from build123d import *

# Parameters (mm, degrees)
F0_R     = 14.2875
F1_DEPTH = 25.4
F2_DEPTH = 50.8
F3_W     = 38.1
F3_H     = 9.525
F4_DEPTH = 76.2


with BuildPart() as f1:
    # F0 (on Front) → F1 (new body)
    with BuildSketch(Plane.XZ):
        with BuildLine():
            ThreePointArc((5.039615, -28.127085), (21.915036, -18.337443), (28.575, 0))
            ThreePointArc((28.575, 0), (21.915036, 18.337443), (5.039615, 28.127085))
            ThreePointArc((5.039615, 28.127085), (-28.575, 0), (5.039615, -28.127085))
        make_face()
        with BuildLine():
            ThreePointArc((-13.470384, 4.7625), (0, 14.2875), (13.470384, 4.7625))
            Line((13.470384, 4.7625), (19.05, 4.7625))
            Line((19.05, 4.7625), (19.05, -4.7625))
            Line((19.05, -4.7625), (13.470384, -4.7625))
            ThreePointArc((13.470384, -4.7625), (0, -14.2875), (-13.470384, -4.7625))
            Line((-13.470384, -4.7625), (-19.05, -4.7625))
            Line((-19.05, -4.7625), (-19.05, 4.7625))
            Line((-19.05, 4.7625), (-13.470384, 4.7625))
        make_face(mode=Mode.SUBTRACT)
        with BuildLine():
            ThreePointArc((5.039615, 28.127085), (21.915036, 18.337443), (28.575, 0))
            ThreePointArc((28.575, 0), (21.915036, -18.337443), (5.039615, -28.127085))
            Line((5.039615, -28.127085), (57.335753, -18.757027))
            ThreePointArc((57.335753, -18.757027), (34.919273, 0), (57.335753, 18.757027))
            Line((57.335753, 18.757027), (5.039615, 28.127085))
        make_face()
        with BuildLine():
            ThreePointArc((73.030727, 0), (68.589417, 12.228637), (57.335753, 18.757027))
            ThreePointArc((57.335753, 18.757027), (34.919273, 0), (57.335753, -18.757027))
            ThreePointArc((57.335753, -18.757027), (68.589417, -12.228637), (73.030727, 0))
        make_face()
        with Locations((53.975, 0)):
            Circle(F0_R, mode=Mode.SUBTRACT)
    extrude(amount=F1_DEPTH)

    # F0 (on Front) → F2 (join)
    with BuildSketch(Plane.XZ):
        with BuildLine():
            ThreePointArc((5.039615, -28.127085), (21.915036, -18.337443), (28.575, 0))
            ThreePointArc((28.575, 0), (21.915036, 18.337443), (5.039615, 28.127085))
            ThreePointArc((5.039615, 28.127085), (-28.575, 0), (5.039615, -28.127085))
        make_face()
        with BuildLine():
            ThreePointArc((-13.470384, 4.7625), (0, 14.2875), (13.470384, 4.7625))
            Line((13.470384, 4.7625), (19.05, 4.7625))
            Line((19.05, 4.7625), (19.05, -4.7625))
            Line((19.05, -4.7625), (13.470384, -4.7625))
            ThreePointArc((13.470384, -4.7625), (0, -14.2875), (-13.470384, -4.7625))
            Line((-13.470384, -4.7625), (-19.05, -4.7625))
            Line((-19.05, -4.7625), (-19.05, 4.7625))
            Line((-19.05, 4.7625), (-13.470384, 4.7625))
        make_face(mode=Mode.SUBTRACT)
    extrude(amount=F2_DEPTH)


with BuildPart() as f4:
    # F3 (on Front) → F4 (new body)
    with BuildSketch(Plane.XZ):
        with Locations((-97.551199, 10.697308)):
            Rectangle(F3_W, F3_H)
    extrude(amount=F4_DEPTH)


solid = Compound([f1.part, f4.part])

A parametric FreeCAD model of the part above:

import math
import FreeCAD as App
import Part
import Sketcher

V = App.Vector
Q = App.Units.Quantity

doc = App.newDocument("Part")
body = doc.addObject("PartDesign::Body", "Body")

sketch1 = doc.addObject("Sketcher::SketchObject", "Sketch")
body.addObject(sketch1)
sketch1.AttachmentSupport = (doc.XZ_Plane, [""])
sketch1.MapMode = "FlatFace"
sketch1.addGeometry([
    Part.ArcOfCircle(Part.Circle(V(0, 0, 0), V(0, 0, 1), 29), math.radians(80), math.radians(280)),
    Part.LineSegment(V(5, -28, 0), V(57, -19, 0)),
    Part.ArcOfCircle(Part.Circle(V(54, 0, 0), V(0, 0, 1), 19), math.radians(-80), math.radians(0)),
    Part.ArcOfCircle(Part.Circle(V(54, 0, 0), V(0, 0, 1), 19), math.radians(0), math.radians(80)),
    Part.LineSegment(V(57, 19, 0), V(5, 28, 0)),
    Part.LineSegment(V(-19, 5, 0), V(-13, 5, 0)),
    Part.ArcOfCircle(Part.Circle(V(0, 0, 0), V(0, 0, 1), 14), math.radians(19), math.radians(161)),
    Part.LineSegment(V(13, 5, 0), V(19, 5, 0)),
    Part.LineSegment(V(19, 5, 0), V(19, -5, 0)),
    Part.LineSegment(V(19, -5, 0), V(13, -5, 0)),
    Part.ArcOfCircle(Part.Circle(V(0, 0, 0), V(0, 0, 1), 14), math.radians(-161), math.radians(-19)),
    Part.LineSegment(V(-13, -5, 0), V(-19, -5, 0)),
    Part.LineSegment(V(-19, -5, 0), V(-19, 5, 0)),
    Part.Circle(V(54, 0, 0), V(0, 0, 1), 14),
], False)
sketch1.addConstraint([
    Sketcher.Constraint("Tangent", 0, 2, 1, 1),
    Sketcher.Constraint("Tangent", 1, 2, 2, 1),
    Sketcher.Constraint("Tangent", 2, 2, 3, 1),
    Sketcher.Constraint("Tangent", 3, 2, 4, 1),
    Sketcher.Constraint("Tangent", 4, 2, 0, 1),
    Sketcher.Constraint("Coincident", 5, 2, 6, 2),
    Sketcher.Constraint("Coincident", 6, 1, 7, 1),
    Sketcher.Constraint("Coincident", 7, 2, 8, 1),
    Sketcher.Constraint("Coincident", 8, 2, 9, 1),
    Sketcher.Constraint("Coincident", 9, 2, 10, 2),
    Sketcher.Constraint("Coincident", 10, 1, 11, 1),
    Sketcher.Constraint("Coincident", 11, 2, 12, 1),
    Sketcher.Constraint("Coincident", 12, 2, 5, 1),
    Sketcher.Constraint("Horizontal", 5),
    Sketcher.Constraint("Horizontal", 7),
    Sketcher.Constraint("Vertical", 8),
    Sketcher.Constraint("Horizontal", 9),
    Sketcher.Constraint("Horizontal", 11),
    Sketcher.Constraint("Vertical", 12),
    Sketcher.Constraint("Coincident", 0, 3, -1, 1),
    Sketcher.Constraint("Coincident", 6, 3, -1, 1),
    Sketcher.Constraint("Coincident", 10, 3, -1, 1),
    Sketcher.Constraint("Coincident", 13, 3, 2, 3),
    Sketcher.Constraint("Equal", 2, 3),
    Sketcher.Constraint("Equal", 6, 10),
    Sketcher.Constraint("Equal", 10, 13),
    Sketcher.Constraint("Symmetric", 7, 2, 11, 2, -1, 1),
    Sketcher.Constraint("PointOnObject", 2, 3, -1),
    Sketcher.Constraint("PointOnObject", 2, 2, -1),
    Sketcher.Constraint("Horizontal", 5, 2, 6, 1),
    Sketcher.Constraint("Horizontal", 9, 2, 10, 1),
    Sketcher.Constraint("Diameter", 13, Q("1.125 in")),
    Sketcher.Constraint("Radius", 0, Q("1.125 in")),
    Sketcher.Constraint("DistanceY", 8, 2, 8, 1, Q("0.375 in")),
    Sketcher.Constraint("DistanceX", -1, 1, 7, 2, Q("0.75 in")),
    Sketcher.Constraint("DistanceX", -1, 1, 2, 3, Q("2.1250001 in")),
    Sketcher.Constraint("Radius", 2, Q("19.055725 mm")),
])
pad1 = doc.addObject("PartDesign::Pad", "Pad")
body.addObject(pad1)
pad1.Profile = sketch1
pad1.Length = Q("1 in")

sketch2 = doc.addObject("Sketcher::SketchObject", "Sketch001")
body.addObject(sketch2)
sketch2.AttachmentSupport = (doc.XZ_Plane, [""])
sketch2.MapMode = "FlatFace"
sketch2.addGeometry([
    Part.ArcOfCircle(Part.Circle(V(0, 0, 0), V(0, 0, 1), 29), math.radians(-80), math.radians(0)),
    Part.ArcOfCircle(Part.Circle(V(0, 0, 0), V(0, 0, 1), 29), math.radians(0), math.radians(80)),
    Part.ArcOfCircle(Part.Circle(V(0, 0, 0), V(0, 0, 1), 29), math.radians(80), math.radians(280)),
    Part.LineSegment(V(-19, 5, 0), V(-13, 5, 0)),
    Part.ArcOfCircle(Part.Circle(V(0, 0, 0), V(0, 0, 1), 14), math.radians(19), math.radians(161)),
    Part.LineSegment(V(13, 5, 0), V(19, 5, 0)),
    Part.LineSegment(V(19, 5, 0), V(19, -5, 0)),
    Part.LineSegment(V(19, -5, 0), V(13, -5, 0)),
    Part.ArcOfCircle(Part.Circle(V(0, 0, 0), V(0, 0, 1), 14), math.radians(-161), math.radians(-19)),
    Part.LineSegment(V(-13, -5, 0), V(-19, -5, 0)),
    Part.LineSegment(V(-19, -5, 0), V(-19, 5, 0)),
], False)
sketch2.addConstraint([
    Sketcher.Constraint("Tangent", 0, 2, 1, 1),
    Sketcher.Constraint("Tangent", 1, 2, 2, 1),
    Sketcher.Constraint("Tangent", 2, 2, 0, 1),
    Sketcher.Constraint("Coincident", 3, 2, 4, 2),
    Sketcher.Constraint("Coincident", 4, 1, 5, 1),
    Sketcher.Constraint("Coincident", 5, 2, 6, 1),
    Sketcher.Constraint("Coincident", 6, 2, 7, 1),
    Sketcher.Constraint("Coincident", 7, 2, 8, 2),
    Sketcher.Constraint("Coincident", 8, 1, 9, 1),
    Sketcher.Constraint("Coincident", 9, 2, 10, 1),
    Sketcher.Constraint("Coincident", 10, 2, 3, 1),
    Sketcher.Constraint("Horizontal", 3),
    Sketcher.Constraint("Horizontal", 5),
    Sketcher.Constraint("Vertical", 6),
    Sketcher.Constraint("Horizontal", 7),
    Sketcher.Constraint("Horizontal", 9),
    Sketcher.Constraint("Vertical", 10),
    Sketcher.Constraint("Coincident", 0, 3, -1, 1),
    Sketcher.Constraint("Coincident", 4, 3, -1, 1),
    Sketcher.Constraint("Coincident", 8, 3, -1, 1),
    Sketcher.Constraint("Equal", 4, 8),
    Sketcher.Constraint("Symmetric", 5, 2, 9, 2, -1, 1),
    Sketcher.Constraint("PointOnObject", 0, 2, -1),
    Sketcher.Constraint("Horizontal", 3, 2, 4, 1),
    Sketcher.Constraint("Horizontal", 7, 2, 8, 1),
    Sketcher.Constraint("Vertical", 1, 2, 2, 2),
    Sketcher.Constraint("Radius", 0, Q("1.125 in")),
    Sketcher.Constraint("Radius", 4, Q("0.5625 in")),
    Sketcher.Constraint("DistanceY", 6, 2, 6, 1, Q("0.375 in")),
    Sketcher.Constraint("DistanceX", -1, 1, 5, 2, Q("0.75 in")),
    Sketcher.Constraint("DistanceX", -1, 1, 1, 2, Q("5.039615 mm")),
])
pad2 = doc.addObject("PartDesign::Pad", "Pad001")
body.addObject(pad2)
pad2.Profile = sketch2
pad2.Length = Q("2 in")
body2 = doc.addObject("PartDesign::Body", "Body001")

sketch3 = doc.addObject("Sketcher::SketchObject", "Sketch002")
body2.addObject(sketch3)
sketch3.AttachmentSupport = (doc.getObject("XZ_Plane001"), [""])
sketch3.MapMode = "FlatFace"
sketch3.addGeometry([
    Part.LineSegment(V(-117, 15, 0), V(-117, 6, 0)),
    Part.LineSegment(V(-117, 6, 0), V(-79, 6, 0)),
    Part.LineSegment(V(-79, 6, 0), V(-79, 15, 0)),
    Part.LineSegment(V(-79, 15, 0), V(-117, 15, 0)),
], False)
sketch3.addConstraint([
    Sketcher.Constraint("Coincident", 0, 2, 1, 1),
    Sketcher.Constraint("Coincident", 1, 2, 2, 1),
    Sketcher.Constraint("Coincident", 2, 2, 3, 1),
    Sketcher.Constraint("Coincident", 3, 2, 0, 1),
    Sketcher.Constraint("Vertical", 0),
    Sketcher.Constraint("Horizontal", 1),
    Sketcher.Constraint("Vertical", 2),
    Sketcher.Constraint("Horizontal", 3),
    Sketcher.Constraint("DistanceX", 1, 1, 1, 2, Q("1.5 in")),
    Sketcher.Constraint("DistanceY", 0, 2, 0, 1, Q("0.375 in")),
    Sketcher.Constraint("DistanceX", 0, 2, -1, 1, Q("116.601199 mm")),
    Sketcher.Constraint("DistanceY", -1, 1, 0, 2, Q("5.934808 mm")),
])
pad3 = doc.addObject("PartDesign::Pad", "Pad002")
body2.addObject(pad3)
pad3.Profile = sketch3
pad3.Length = Q("3 in")

doc.recompute()
